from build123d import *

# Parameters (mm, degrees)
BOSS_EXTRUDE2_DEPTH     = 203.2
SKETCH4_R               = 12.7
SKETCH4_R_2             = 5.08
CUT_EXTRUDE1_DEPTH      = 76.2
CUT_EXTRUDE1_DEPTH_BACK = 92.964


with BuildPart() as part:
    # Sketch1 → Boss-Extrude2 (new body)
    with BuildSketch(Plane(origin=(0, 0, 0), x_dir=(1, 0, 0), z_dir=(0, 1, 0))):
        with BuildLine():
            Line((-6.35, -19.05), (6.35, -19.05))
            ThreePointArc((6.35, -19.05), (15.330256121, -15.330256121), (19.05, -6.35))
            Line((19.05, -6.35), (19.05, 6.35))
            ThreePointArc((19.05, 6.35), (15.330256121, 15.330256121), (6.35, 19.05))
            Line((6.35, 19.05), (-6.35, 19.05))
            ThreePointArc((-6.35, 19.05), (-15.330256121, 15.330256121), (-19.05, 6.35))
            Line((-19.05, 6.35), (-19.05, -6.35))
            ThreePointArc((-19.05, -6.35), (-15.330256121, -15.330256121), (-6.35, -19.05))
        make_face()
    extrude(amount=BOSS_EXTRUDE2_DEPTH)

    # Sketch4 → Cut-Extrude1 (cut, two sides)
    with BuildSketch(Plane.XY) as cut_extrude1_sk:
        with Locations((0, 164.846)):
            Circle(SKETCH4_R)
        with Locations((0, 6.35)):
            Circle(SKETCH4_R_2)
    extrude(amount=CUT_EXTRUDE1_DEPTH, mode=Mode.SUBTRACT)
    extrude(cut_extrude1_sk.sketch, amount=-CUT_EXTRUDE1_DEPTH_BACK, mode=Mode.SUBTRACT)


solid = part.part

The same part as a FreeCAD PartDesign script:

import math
import FreeCAD as App
import Part
import Sketcher
from FreeCAD import Vector
Q = App.Units.Quantity

doc = App.newDocument("Part")
body = doc.addObject("PartDesign::Body", "Body")

sketch1 = body.newObject("Sketcher::SketchObject", "Sketch")
sketch1.AttachmentSupport = (doc.getObject("XZ_Plane"), [""])
sketch1.MapMode = "FlatFace"
sketch1.addGeometry([
    Part.LineSegment(Vector(-6.35, 19.05, 0), Vector(6.35, 19.05, 0)),
    Part.ArcOfCircle(Part.Circle(Vector(6.35, 6.35, 0), Vector(0, 0, 1), 12.7), math.radians(0), math.radians(90)),
    Part.LineSegment(Vector(19.05, 6.35, 0), Vector(19.05, -6.35, 0)),
    Part.ArcOfCircle(Part.Circle(Vector(6.35, -6.35, 0), Vector(0, 0, 1), 12.7), math.radians(-90), math.radians(0)),
    Part.LineSegment(Vector(6.35, -19.05, 0), Vector(-6.35, -19.05, 0)),
    Part.ArcOfCircle(Part.Circle(Vector(-6.35, -6.35, 0), Vector(0, 0, 1), 12.7), math.radians(180), math.radians(270)),
    Part.LineSegment(Vector(-19.05, -6.35, 0), Vector(-19.05, 6.35, 0)),
    Part.ArcOfCircle(Part.Circle(Vector(-6.35, 6.35, 0), Vector(0, 0, 1), 12.7), math.radians(90), math.radians(180)),
], False)
sketch1.addConstraint([
    Sketcher.Constraint("Tangent", 0, 2, 1, 2),
    Sketcher.Constraint("Tangent", 1, 1, 2, 1),
    Sketcher.Constraint("Tangent", 2, 2, 3, 2),
    Sketcher.Constraint("Tangent", 3, 1, 4, 1),
    Sketcher.Constraint("Tangent", 4, 2, 5, 2),
    Sketcher.Constraint("Tangent", 5, 1, 6, 1),
    Sketcher.Constraint("Tangent", 6, 2, 7, 2),
    Sketcher.Constraint("Tangent", 7, 1, 0, 1),
    Sketcher.Constraint("Horizontal", 0),
    Sketcher.Constraint("Vertical", 2),
    Sketcher.Constraint("Horizontal", 4),
    Sketcher.Constraint("Vertical", 6),
    Sketcher.Constraint("Equal", 1, 3),
    Sketcher.Constraint("Equal", 3, 5),
    Sketcher.Constraint("Equal", 5, 7),
    Sketcher.Constraint("Symmetric", 1, 3, 5, 3, -1, 1),
    Sketcher.Constraint("Equal", 4, 2),
    Sketcher.Constraint("Radius", 1, Q("0.5 in")),
    Sketcher.Constraint("DistanceX", 0, 1, 0, 2, Q("0.5 in")),
])
pad1 = body.newObject("PartDesign::Pad", "Pad")
pad1.Profile = sketch1
pad1.Length = Q("8 in")
pad1.Reversed = True

sketch2 = body.newObject("Sketcher::SketchObject", "Sketch001")
sketch2.AttachmentSupport = (doc.getObject("XY_Plane"), [""])
sketch2.MapMode = "FlatFace"
sketch2.addGeometry([
    Part.Circle(Vector(0, 164.846, 0), Vector(0, 0, 1), 12.7),
    Part.Circle(Vector(0, 6.35, 0), Vector(0, 0, 1), 5.08),
], False)
sketch2.addConstraint([
    Sketcher.Constraint("PointOnObject", 0, 3, -2),
    Sketcher.Constraint("PointOnObject", 1, 3, -2),
    Sketcher.Constraint("Diameter", 0, Q("1 in")),
    Sketcher.Constraint("Diameter", 1, Q("0.4 in")),
    Sketcher.Constraint("DistanceY", -1, 1, 0, 3, Q("6.49 in")),
    Sketcher.Constraint("DistanceY", -1, 1, 1, 3, Q("0.25 in")),
])
pocket1 = body.newObject("PartDesign::Pocket", "Pocket")
pocket1.Profile = sketch2
pocket1.Type = "ThroughAll"
pocket1.Midplane = True

doc.recompute()
